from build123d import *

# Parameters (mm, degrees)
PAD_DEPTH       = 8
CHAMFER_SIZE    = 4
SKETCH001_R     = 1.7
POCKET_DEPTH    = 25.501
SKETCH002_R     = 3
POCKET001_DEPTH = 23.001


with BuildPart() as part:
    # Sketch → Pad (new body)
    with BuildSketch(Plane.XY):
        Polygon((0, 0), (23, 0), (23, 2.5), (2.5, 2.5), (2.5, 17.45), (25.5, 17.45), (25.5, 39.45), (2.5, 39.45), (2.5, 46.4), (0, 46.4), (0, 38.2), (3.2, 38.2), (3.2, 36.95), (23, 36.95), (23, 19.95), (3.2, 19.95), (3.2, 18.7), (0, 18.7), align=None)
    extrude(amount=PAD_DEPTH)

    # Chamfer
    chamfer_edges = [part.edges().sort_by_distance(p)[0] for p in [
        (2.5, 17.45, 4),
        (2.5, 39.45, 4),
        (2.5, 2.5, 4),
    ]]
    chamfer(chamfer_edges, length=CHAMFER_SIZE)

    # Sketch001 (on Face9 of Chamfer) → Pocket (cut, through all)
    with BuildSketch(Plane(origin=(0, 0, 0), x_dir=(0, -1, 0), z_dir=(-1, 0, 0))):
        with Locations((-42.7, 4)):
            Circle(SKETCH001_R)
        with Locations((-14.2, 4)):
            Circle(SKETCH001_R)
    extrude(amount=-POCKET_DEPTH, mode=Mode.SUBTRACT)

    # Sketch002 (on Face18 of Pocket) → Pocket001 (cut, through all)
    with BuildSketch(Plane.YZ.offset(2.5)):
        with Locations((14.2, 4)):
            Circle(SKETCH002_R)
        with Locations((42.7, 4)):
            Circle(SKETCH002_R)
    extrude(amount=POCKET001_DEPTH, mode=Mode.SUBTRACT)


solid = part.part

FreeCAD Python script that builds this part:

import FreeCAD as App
import Part
import Sketcher
Q = App.Units.Quantity


def edges_at(feature, points):
    """Names of the edges that pass closest to the given points."""
    edges = feature.Shape.Edges
    near = lambda p: min(range(len(edges)), key=lambda i: edges[i].distToShape(Part.Vertex(*p))[0])
    return sorted({f"Edge{near(p) + 1}" for p in points})


def add_polygon(sketch, points):
    """Adds a closed chain of lines whose ends are joined by coincident constraints."""
    first, n = sketch.GeometryCount, len(points)
    for a, b in zip(points, points[1:] + points[:1]):
        sketch.addGeometry(Part.LineSegment(App.Vector(*a, 0), App.Vector(*b, 0)), False)
    for i in range(n):
        sketch.addConstraint(Sketcher.Constraint("Coincident", first + i, 2, first + (i + 1) % n, 1))

doc = App.newDocument("Part")
params = doc.addObject("Spreadsheet::Sheet", "Params")
for row, (alias, value) in enumerate([
    ("sketch1_width", "23 mm"),
    ("sketch1_height", "22 mm"),
    ("sketch1_height2", "17 mm"),
    ("sketch1_width2", "20.5 mm"),
    ("sketch1_width3", "3.2 mm"),
    ("pad1_length", "8 mm"),
    ("chamfer_size", "4 mm"),
    ("sketch2_diameter", "3.4 mm"),
    ("sketch3_diameter", "6 mm"),
], start=1):
    params.set(f"A{row}", alias)
    params.set(f"B{row}", "=" + value)
    params.setAlias(f"B{row}", alias)

body = doc.addObject("PartDesign::Body", "Body")

sketch1 = body.newObject("Sketcher::SketchObject", "Sketch")
sketch1.AttachmentSupport = (doc.getObject("XY_Plane"), [""])
sketch1.MapMode = "FlatFace"
add_polygon(sketch1, [(0, 0), (23, 0), (23, 2.5), (2.5, 2.5), (2.5, 17.4), (25.5, 17.4), (25.5, 39.5), (2.5, 39.5), (2.5, 46.4), (0, 46.4), (0, 38.2), (3.2, 38.2), (3.2, 37), (23, 37), (23, 19.9), (3.2, 19.9), (3.2, 18.7), (0, 18.7)])
sketch1.addConstraint(Sketcher.Constraint("Horizontal", 0))
sketch1.addConstraint(Sketcher.Constraint("Vertical", 1))
sketch1.addConstraint(Sketcher.Constraint("Horizontal", 2))
sketch1.addConstraint(Sketcher.Constraint("Vertical", 3))
sketch1.addConstraint(Sketcher.Constraint("Horizontal", 4))
sketch1.addConstraint(Sketcher.Constraint("Vertical", 5))
sketch1.addConstraint(Sketcher.Constraint("Horizontal", 6))
sketch1.addConstraint(Sketcher.Constraint("Vertical", 7))
sketch1.addConstraint(Sketcher.Constraint("Horizontal", 8))
sketch1.addConstraint(Sketcher.Constraint("Vertical", 9))
sketch1.addConstraint(Sketcher.Constraint("Horizontal", 10))
sketch1.addConstraint(Sketcher.Constraint("Vertical", 11))
sketch1.addConstraint(Sketcher.Constraint("Horizontal", 12))
sketch1.addConstraint(Sketcher.Constraint("Vertical", 13))
sketch1.addConstraint(Sketcher.Constraint("Horizontal", 14))
sketch1.addConstraint(Sketcher.Constraint("Vertical", 15))
sketch1.addConstraint(Sketcher.Constraint("Horizontal", 16))
sketch1.addConstraint(Sketcher.Constraint("Vertical", 17))
sketch1.addConstraint(Sketcher.Constraint("Coincident", 17, 2, -1, 1))
sketch1.addConstraint(Sketcher.Constraint("PointOnObject", 8, 2, -2))
sketch1.addConstraint(Sketcher.Constraint("Vertical", 3, 2, 6, 2))
sketch1.addConstraint(Sketcher.Constraint("Vertical", 1, 2, 12, 2))
sketch1.addConstraint(Sketcher.Constraint("Vertical", 11, 2, 14, 2))
sketch1.addConstraint(Sketcher.Constraint("Equal", 0, 4))
sketch1.addConstraint(Sketcher.Constraint("Equal", 8, 1))
sketch1.addConstraint(Sketcher.Constraint("Equal", 11, 15))
sketch1.addConstraint(Sketcher.Constraint("DistanceX", 0, 1, 0, 2, Q("23 mm")))
sketch1.addConstraint(Sketcher.Constraint("DistanceY", 5, 1, 5, 2, Q("22 mm")))
sketch1.addConstraint(Sketcher.Constraint("DistanceY", 13, 2, 13, 1, Q("17 mm")))
sketch1.addConstraint(Sketcher.Constraint("DistanceX", 2, 2, 2, 1, Q("20.5 mm")))
sketch1.addConstraint(Sketcher.Constraint("DistanceX", 10, 1, 10, 2, Q("3.2 mm")))
sketch1.addConstraint(Sketcher.Constraint("DistanceY", 9, 2, 9, 1, Q("8.2 mm")))
sketch1.addConstraint(Sketcher.Constraint("DistanceY", 17, 2, 17, 1, Q("18.7 mm")))
sketch1.addConstraint(Sketcher.Constraint("DistanceY", 3, 1, 3, 2, Q("14.95 mm")))
sketch1.addConstraint(Sketcher.Constraint("DistanceY", 7, 1, 7, 2, Q("6.95 mm")))
sketch1.setExpression("Constraints[44]", "Params.sketch1_width")
sketch1.setExpression("Constraints[45]", "Params.sketch1_height")
sketch1.setExpression("Constraints[46]", "Params.sketch1_height2")
sketch1.setExpression("Constraints[47]", "Params.sketch1_width2")
sketch1.setExpression("Constraints[48]", "Params.sketch1_width3")
pad1 = body.newObject("PartDesign::Pad", "Pad")
pad1.Profile = sketch1
pad1.setExpression("Length", "Params.pad1_length")
doc.recompute()

chamfer = body.newObject("PartDesign::Chamfer", "Chamfer")
chamfer.Base = (pad1, edges_at(pad1, [(2.5, 17.45, 4), (2.5, 39.45, 4), (2.5, 2.5, 4)]))
chamfer.setExpression("Size", "Params.chamfer_size")

sketch2 = body.newObject("Sketcher::SketchObject", "Sketch001")
sketch2.AttachmentSupport = (doc.getObject("YZ_Plane"), [""])
sketch2.MapMode = "FlatFace"
sketch2.addGeometry(Part.Circle(App.Vector(42.7, 4, 0), App.Vector(0, 0, 1), 1.7), False)
sketch2.addGeometry(Part.Circle(App.Vector(14.2, 4, 0), App.Vector(0, 0, 1), 1.7), False)
sketch2.addConstraint(Sketcher.Constraint("Equal", 0, 1))
sketch2.addConstraint(Sketcher.Constraint("Horizontal", 0, 3, 1, 3))
sketch2.addConstraint(Sketcher.Constraint("Diameter", 0, Q("3.4 mm")))
sketch2.addConstraint(Sketcher.Constraint("DistanceY", -1, 1, 0, 3, Q("4 mm")))
sketch2.addConstraint(Sketcher.Constraint("DistanceX", -1, 1, 0, 3, Q("42.7 mm")))
sketch2.addConstraint(Sketcher.Constraint("DistanceX", -1, 1, 1, 3, Q("14.2 mm")))
sketch2.setExpression("Constraints[2]", "Params.sketch2_diameter")
pocket1 = body.newObject("PartDesign::Pocket", "Pocket")
pocket1.Profile = sketch2
pocket1.Type = "ThroughAll"
pocket1.Reversed = True

sketch3 = body.newObject("Sketcher::SketchObject", "Sketch002")
sketch3.AttachmentSupport = (doc.getObject("YZ_Plane"), [""])
sketch3.MapMode = "FlatFace"
sketch3.AttachmentOffset = App.Placement(App.Vector(0, 0, 2.5), App.Rotation())
sketch3.addGeometry(Part.Circle(App.Vector(14.2, 4, 0), App.Vector(0, 0, 1), 3), False)
sketch3.addGeometry(Part.Circle(App.Vector(42.7, 4, 0), App.Vector(0, 0, 1), 3), False)
sketch3.addConstraint(Sketcher.Constraint("Equal", 0, 1))
sketch3.addConstraint(Sketcher.Constraint("Horizontal", 0, 3, 1, 3))
sketch3.addConstraint(Sketcher.Constraint("Diameter", 0, Q("6 mm")))
sketch3.addConstraint(Sketcher.Constraint("DistanceY", -1, 1, 0, 3, Q("4 mm")))
sketch3.addConstraint(Sketcher.Constraint("DistanceX", -1, 1, 0, 3, Q("14.2 mm")))
sketch3.addConstraint(Sketcher.Constraint("DistanceX", -1, 1, 1, 3, Q("42.7 mm")))
sketch3.setExpression("Constraints[2]", "Params.sketch3_diameter")
pocket2 = body.newObject("PartDesign::Pocket", "Pocket001")
pocket2.Profile = sketch3
pocket2.Type = "ThroughAll"
pocket2.Reversed = True

doc.recompute()
